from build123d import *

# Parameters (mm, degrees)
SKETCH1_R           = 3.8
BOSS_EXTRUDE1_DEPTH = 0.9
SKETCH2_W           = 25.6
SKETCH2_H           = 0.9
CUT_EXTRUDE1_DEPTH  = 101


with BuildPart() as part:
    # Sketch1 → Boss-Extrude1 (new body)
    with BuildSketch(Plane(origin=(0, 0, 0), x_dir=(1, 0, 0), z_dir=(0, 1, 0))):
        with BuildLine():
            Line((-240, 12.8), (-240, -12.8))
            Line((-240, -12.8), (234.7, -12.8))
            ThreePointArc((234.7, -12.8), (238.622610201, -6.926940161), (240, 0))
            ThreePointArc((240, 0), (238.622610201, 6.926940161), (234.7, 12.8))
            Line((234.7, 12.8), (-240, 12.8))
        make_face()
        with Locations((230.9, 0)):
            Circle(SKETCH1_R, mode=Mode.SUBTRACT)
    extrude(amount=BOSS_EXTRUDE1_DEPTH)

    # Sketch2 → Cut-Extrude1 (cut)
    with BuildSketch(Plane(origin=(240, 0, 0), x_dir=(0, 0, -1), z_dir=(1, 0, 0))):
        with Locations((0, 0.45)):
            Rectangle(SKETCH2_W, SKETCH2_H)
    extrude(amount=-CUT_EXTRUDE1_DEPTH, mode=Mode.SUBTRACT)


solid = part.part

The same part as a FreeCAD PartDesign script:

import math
import FreeCAD as App
import Part
import Sketcher
from FreeCAD import Vector


def add_polygon(sketch, points):
    """Adds a closed chain of lines whose ends are joined by coincident constraints."""
    first, n = sketch.GeometryCount, len(points)
    for a, b in zip(points, points[1:] + points[:1]):
        sketch.addGeometry(Part.LineSegment(App.Vector(*a, 0), App.Vector(*b, 0)), False)
    for i in range(n):
        sketch.addConstraint(Sketcher.Constraint("Coincident", first + i, 2, first + (i + 1) % n, 1))

doc = App.newDocument("Part")
body = doc.addObject("PartDesign::Body", "Body")

sketch1 = body.newObject("Sketcher::SketchObject", "Sketch")
sketch1.AttachmentSupport = (doc.getObject("XZ_Plane"), [""])
sketch1.MapMode = "FlatFace"
sketch1.addGeometry([
    Part.LineSegment(Vector(-240, -12.8, 0), Vector(-240, 12.8, 0)),
    Part.LineSegment(Vector(-240, 12.8, 0), Vector(234.7, 12.8, 0)),
    Part.ArcOfCircle(Part.Circle(Vector(221.9, 0, 0), Vector(0, 0, 1), 18.1), math.radians(0), math.radians(45)),
    Part.ArcOfCircle(Part.Circle(Vector(221.9, 0, 0), Vector(0, 0, 1), 18.1), math.radians(-45), math.radians(0)),
    Part.LineSegment(Vector(234.7, -12.8, 0), Vector(-240, -12.8, 0)),
    Part.Circle(Vector(230.9, 0, 0), Vector(0, 0, 1), 3.8),
], False)
sketch1.addConstraint([
    Sketcher.Constraint("Coincident", 0, 2, 1, 1),
    Sketcher.Constraint("Coincident", 1, 2, 2, 2),
    Sketcher.Constraint("Tangent", 2, 1, 3, 2),
    Sketcher.Constraint("Coincident", 3, 1, 4, 1),
    Sketcher.Constraint("Coincident", 4, 2, 0, 1),
    Sketcher.Constraint("Vertical", 0),
    Sketcher.Constraint("Horizontal", 1),
    Sketcher.Constraint("Horizontal", 4),
    Sketcher.Constraint("Equal", 2, 3),
    Sketcher.Constraint("Symmetric", 1, 2, 3, 1, -1),
    Sketcher.Constraint("PointOnObject", 5, 3, -1),
    Sketcher.Constraint("PointOnObject", 2, 1, -1),
    Sketcher.Constraint("Diameter", 5, 7.6),
    Sketcher.Constraint("DistanceX", 1, 1, 1, 2, 474.7),
    Sketcher.Constraint("DistanceY", 0, 1, 0, 2, 25.6),
    Sketcher.Constraint("DistanceX", 0, 2, -1, 1, 240.0),
    Sketcher.Constraint("DistanceX", -1, 1, 2, 1, 240.0),
    Sketcher.Constraint("DistanceX", -1, 1, 5, 3, 230.9),
])
pad1 = body.newObject("PartDesign::Pad", "Pad")
pad1.Profile = sketch1
pad1.Length = 0.9
pad1.Reversed = True

sketch2 = body.newObject("Sketcher::SketchObject", "Sketch001")
sketch2.AttachmentSupport = (doc.getObject("YZ_Plane"), [""])
sketch2.MapMode = "FlatFace"
sketch2.AttachmentOffset = App.Placement(Vector(0, 0, 240), App.Rotation())
add_polygon(sketch2, [(0.9, 12.8), (0, 12.8), (0, -12.8), (0.9, -12.8)])
sketch2.addConstraint([
    Sketcher.Constraint("Horizontal", 0),
    Sketcher.Constraint("Vertical", 1),
    Sketcher.Constraint("Horizontal", 2),
    Sketcher.Constraint("Vertical", 3),
    Sketcher.Constraint("Symmetric", 0, 2, 1, 2, -1, 1),
    Sketcher.Constraint("DistanceX", 0, 2, 0, 1, 0.9),
    Sketcher.Constraint("DistanceY", 1, 2, 1, 1, 25.6),
])
pocket1 = body.newObject("PartDesign::Pocket", "Pocket")
pocket1.Profile = sketch2
pocket1.Length = 101

doc.recompute()
